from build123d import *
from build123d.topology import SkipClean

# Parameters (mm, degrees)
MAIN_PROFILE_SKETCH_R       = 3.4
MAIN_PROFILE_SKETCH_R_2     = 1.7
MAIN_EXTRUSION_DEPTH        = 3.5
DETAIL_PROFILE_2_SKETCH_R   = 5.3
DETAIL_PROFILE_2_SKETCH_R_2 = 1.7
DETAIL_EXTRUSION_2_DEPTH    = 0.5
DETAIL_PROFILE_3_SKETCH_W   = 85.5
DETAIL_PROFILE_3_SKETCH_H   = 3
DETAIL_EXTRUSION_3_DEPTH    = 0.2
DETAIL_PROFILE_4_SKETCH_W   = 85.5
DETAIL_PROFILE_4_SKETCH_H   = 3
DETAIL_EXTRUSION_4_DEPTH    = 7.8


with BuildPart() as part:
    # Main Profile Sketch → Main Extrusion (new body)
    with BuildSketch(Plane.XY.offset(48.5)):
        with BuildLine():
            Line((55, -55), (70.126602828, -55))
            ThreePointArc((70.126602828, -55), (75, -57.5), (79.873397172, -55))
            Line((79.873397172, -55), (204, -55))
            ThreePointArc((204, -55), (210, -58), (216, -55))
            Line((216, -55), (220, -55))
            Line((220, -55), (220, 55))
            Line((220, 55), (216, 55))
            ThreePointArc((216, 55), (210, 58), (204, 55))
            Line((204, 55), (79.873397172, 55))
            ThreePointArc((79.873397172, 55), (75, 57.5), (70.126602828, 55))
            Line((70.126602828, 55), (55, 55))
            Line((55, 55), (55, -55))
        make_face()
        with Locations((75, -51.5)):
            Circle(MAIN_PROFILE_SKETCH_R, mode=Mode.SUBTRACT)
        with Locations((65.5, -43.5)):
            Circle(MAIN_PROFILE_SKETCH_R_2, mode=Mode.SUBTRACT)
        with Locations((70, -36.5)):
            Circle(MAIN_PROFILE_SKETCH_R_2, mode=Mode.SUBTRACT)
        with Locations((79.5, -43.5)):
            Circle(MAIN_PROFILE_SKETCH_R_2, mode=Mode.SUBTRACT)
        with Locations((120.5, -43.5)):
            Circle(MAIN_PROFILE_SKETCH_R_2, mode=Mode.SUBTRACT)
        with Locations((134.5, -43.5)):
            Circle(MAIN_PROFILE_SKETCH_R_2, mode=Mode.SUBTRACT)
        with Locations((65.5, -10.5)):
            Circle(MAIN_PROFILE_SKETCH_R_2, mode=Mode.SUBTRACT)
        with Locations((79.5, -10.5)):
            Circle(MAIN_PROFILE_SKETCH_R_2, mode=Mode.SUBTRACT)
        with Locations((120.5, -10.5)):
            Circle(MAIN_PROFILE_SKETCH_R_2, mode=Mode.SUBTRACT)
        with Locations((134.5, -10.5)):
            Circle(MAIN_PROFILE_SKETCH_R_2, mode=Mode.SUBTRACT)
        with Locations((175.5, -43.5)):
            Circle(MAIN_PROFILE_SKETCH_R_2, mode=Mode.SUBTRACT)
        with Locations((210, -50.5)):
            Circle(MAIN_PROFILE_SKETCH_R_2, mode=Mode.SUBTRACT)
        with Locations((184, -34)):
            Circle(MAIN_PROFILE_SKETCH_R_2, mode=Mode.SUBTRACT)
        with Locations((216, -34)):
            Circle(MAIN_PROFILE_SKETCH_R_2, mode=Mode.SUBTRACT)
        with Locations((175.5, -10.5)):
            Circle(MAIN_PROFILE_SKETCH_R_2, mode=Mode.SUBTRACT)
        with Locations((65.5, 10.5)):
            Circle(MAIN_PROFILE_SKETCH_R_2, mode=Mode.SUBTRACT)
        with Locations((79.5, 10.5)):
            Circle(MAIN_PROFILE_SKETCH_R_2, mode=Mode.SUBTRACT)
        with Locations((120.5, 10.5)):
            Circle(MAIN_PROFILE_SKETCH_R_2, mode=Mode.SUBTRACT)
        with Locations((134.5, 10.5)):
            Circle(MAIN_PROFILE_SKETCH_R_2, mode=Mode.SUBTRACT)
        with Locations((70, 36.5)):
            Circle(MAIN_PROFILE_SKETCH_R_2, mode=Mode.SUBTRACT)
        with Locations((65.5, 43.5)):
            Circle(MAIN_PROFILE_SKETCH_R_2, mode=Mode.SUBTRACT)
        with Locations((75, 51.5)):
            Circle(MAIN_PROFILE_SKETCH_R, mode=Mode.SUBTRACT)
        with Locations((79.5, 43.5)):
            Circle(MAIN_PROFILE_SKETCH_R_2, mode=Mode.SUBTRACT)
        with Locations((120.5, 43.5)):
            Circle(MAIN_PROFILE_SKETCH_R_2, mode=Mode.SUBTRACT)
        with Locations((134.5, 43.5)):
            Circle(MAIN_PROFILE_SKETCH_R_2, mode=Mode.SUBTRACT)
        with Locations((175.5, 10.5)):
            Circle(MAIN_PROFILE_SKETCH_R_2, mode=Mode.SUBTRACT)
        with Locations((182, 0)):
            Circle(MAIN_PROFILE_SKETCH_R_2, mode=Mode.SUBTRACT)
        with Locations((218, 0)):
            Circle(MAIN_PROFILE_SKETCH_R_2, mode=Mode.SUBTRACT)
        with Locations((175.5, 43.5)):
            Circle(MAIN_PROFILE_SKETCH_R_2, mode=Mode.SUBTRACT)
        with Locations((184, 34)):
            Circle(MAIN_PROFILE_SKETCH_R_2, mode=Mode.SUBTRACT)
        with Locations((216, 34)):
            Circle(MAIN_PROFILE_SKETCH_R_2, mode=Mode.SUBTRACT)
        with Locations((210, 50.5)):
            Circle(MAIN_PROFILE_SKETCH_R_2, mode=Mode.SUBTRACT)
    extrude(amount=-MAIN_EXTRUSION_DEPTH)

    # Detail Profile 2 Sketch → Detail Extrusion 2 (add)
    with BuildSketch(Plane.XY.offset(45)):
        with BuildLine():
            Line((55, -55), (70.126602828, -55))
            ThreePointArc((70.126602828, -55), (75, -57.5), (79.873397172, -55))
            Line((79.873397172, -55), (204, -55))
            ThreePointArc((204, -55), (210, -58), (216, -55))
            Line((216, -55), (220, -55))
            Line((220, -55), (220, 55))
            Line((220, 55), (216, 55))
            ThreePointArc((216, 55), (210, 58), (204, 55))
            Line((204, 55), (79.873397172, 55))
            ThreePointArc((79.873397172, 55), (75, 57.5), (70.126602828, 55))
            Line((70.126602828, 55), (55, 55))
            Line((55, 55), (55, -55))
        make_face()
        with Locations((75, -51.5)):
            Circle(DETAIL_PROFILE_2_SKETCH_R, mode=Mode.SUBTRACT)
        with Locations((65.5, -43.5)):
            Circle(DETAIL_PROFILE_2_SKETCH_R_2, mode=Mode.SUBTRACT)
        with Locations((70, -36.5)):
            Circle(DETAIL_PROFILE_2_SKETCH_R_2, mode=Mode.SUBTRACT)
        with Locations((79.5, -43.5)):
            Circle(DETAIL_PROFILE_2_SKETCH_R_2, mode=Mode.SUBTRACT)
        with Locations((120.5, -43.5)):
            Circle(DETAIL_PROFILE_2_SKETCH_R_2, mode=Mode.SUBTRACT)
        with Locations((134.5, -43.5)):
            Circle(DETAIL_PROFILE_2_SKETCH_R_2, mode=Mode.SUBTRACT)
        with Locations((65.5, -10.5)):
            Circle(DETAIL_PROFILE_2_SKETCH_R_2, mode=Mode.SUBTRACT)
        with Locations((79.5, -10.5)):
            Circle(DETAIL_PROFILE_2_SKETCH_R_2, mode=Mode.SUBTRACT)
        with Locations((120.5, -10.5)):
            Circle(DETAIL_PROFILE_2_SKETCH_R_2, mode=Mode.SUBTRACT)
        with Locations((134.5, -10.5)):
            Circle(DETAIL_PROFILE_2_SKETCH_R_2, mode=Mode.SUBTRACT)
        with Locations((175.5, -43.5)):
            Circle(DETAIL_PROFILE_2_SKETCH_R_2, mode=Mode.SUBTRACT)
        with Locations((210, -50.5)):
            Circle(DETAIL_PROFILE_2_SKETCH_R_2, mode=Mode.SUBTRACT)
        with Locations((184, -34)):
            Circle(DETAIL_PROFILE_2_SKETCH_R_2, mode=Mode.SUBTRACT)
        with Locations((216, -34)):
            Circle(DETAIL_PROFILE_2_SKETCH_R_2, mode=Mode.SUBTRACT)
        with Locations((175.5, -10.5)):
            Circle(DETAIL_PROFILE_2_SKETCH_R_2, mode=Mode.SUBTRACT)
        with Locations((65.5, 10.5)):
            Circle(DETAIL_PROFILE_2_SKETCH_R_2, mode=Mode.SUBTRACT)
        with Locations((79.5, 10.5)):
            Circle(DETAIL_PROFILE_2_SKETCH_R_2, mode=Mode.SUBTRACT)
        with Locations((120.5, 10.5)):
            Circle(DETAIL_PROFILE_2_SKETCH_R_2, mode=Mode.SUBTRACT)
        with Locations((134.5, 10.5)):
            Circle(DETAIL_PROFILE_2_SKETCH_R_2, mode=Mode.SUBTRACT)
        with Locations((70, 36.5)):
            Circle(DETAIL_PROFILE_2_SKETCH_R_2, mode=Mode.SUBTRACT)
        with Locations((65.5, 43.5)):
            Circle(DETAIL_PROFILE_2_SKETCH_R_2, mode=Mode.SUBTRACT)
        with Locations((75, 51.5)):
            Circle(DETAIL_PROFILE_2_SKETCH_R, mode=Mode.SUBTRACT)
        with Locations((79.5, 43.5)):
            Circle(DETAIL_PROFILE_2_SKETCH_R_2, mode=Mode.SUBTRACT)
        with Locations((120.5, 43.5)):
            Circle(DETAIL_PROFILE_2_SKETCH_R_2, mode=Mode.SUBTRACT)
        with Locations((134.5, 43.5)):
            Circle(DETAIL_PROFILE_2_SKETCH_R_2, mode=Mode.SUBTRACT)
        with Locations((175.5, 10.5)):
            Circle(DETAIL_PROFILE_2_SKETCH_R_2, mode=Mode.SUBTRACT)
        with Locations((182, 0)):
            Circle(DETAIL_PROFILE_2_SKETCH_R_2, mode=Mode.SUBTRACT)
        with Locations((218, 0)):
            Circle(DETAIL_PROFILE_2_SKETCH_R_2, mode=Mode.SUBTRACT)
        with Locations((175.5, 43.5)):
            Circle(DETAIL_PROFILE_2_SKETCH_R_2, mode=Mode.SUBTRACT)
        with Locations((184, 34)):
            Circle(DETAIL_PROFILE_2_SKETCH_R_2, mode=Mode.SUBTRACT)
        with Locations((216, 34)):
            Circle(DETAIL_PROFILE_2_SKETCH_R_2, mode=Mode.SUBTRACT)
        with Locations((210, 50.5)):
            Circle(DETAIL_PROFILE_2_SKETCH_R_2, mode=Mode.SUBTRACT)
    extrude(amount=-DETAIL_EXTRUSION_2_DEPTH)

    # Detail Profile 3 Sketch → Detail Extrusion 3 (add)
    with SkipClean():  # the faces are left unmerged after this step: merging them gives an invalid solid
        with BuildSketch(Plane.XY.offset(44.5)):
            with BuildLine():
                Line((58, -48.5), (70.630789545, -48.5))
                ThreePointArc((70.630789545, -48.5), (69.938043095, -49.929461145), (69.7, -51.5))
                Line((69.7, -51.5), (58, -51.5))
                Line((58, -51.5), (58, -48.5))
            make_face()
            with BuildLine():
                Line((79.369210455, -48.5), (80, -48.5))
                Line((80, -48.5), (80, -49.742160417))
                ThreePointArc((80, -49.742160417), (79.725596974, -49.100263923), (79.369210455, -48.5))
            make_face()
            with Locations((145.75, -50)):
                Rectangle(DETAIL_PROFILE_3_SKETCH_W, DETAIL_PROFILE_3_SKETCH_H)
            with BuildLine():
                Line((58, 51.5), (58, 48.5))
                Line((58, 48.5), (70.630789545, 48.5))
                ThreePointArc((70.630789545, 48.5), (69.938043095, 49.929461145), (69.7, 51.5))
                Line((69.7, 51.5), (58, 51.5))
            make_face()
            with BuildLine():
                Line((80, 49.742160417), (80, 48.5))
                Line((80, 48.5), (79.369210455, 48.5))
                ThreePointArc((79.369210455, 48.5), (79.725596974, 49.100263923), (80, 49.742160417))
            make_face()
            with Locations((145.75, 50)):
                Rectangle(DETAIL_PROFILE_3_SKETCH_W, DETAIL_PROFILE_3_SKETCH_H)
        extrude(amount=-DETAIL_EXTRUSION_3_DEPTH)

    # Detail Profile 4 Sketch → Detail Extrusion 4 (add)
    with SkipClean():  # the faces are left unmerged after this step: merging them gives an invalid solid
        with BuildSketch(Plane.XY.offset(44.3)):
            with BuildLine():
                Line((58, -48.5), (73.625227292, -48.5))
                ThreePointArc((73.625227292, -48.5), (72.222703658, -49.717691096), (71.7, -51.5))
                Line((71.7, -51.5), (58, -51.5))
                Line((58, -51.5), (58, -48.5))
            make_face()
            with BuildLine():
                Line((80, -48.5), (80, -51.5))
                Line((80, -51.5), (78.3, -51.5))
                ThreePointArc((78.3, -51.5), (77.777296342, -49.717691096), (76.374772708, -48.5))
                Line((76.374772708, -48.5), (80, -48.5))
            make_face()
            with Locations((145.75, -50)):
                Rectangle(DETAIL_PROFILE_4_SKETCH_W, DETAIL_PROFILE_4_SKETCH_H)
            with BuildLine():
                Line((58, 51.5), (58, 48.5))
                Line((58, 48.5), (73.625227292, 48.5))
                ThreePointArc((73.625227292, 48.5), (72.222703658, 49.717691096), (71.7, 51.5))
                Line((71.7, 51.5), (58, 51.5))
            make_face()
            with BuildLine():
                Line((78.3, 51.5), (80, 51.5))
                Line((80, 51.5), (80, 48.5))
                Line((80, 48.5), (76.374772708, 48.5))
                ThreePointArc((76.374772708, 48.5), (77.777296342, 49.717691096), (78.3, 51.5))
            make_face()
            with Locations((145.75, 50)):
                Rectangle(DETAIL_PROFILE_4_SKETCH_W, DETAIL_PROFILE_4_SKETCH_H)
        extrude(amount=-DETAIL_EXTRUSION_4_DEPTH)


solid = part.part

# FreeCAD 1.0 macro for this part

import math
import FreeCAD as App
import Part
import Sketcher

V = App.Vector


def add_polygon(sketch, points):
    """Adds a closed chain of lines whose ends are joined by coincident constraints."""
    first, n = sketch.GeometryCount, len(points)
    for a, b in zip(points, points[1:] + points[:1]):
        sketch.addGeometry(Part.LineSegment(App.Vector(*a, 0), App.Vector(*b, 0)), False)
    for i in range(n):
        sketch.addConstraint(Sketcher.Constraint("Coincident", first + i, 2, first + (i + 1) % n, 1))

doc = App.newDocument("Part")
body = doc.addObject("PartDesign::Body", "Body")

# Sketch on XY plane
sketch1 = body.newObject("Sketcher::SketchObject", "Sketch")
sketch1.AttachmentSupport = (doc.getObject("XY_Plane"), [""])
sketch1.MapMode = "FlatFace"
sketch1.AttachmentOffset = App.Placement(V(0, 0, 48.5), App.Rotation())
sketch1.addGeometry([
    Part.LineSegment(V(55, -55, 0), V(70.1, -55, 0)),  # 0
    Part.ArcOfCircle(Part.Circle(V(75, -51.5, 0), V(0, 0, 1), 6), math.radians(-144), math.radians(-36)),  # 1
    Part.LineSegment(V(79.9, -55, 0), V(204, -55, 0)),  # 2
    Part.ArcOfCircle(Part.Circle(V(210, -50.5, 0), V(0, 0, 1), 7.5), math.radians(-143), math.radians(-37)),  # 3
    Part.LineSegment(V(216, -55, 0), V(220, -55, 0)),  # 4
    Part.LineSegment(V(220, -55, 0), V(220, 55, 0)),  # 5
    Part.LineSegment(V(220, 55, 0), V(216, 55, 0)),  # 6
    Part.ArcOfCircle(Part.Circle(V(210, 50.5, 0), V(0, 0, 1), 7.5), math.radians(37), math.radians(143)),  # 7
    Part.LineSegment(V(204, 55, 0), V(79.9, 55, 0)),  # 8
    Part.ArcOfCircle(Part.Circle(V(75, 51.5, 0), V(0, 0, 1), 6), math.radians(36), math.radians(144)),  # 9
    Part.LineSegment(V(70.1, 55, 0), V(55, 55, 0)),  # 10
    Part.LineSegment(V(55, 55, 0), V(55, -55, 0)),  # 11
    Part.Circle(V(75, -51.5, 0), V(0, 0, 1), 3.4),  # 12
    Part.Circle(V(65.5, -43.5, 0), V(0, 0, 1), 1.7),  # 13
    Part.Circle(V(79.5, -43.5, 0), V(0, 0, 1), 1.7),  # 14
    Part.Circle(V(70, -36.5, 0), V(0, 0, 1), 1.7),  # 15
    Part.Circle(V(120.5, -43.5, 0), V(0, 0, 1), 1.7),  # 16
    Part.Circle(V(134.5, -43.5, 0), V(0, 0, 1), 1.7),  # 17
    Part.Circle(V(65.5, -10.5, 0), V(0, 0, 1), 1.7),  # 18
    Part.Circle(V(79.5, -10.5, 0), V(0, 0, 1), 1.7),  # 19
    Part.Circle(V(120.5, -10.5, 0), V(0, 0, 1), 1.7),  # 20
    Part.Circle(V(134.5, -10.5, 0), V(0, 0, 1), 1.7),  # 21
    Part.Circle(V(175.5, -43.5, 0), V(0, 0, 1), 1.7),  # 22
    Part.Circle(V(210, -50.5, 0), V(0, 0, 1), 1.7),  # 23
    Part.Circle(V(184, -34, 0), V(0, 0, 1), 1.7),  # 24
    Part.Circle(V(216, -34, 0), V(0, 0, 1), 1.7),  # 25
    Part.Circle(V(175.5, -10.5, 0), V(0, 0, 1), 1.7),  # 26
    Part.Circle(V(65.5, 10.5, 0), V(0, 0, 1), 1.7),  # 27
    Part.Circle(V(79.5, 10.5, 0), V(0, 0, 1), 1.7),  # 28
    Part.Circle(V(120.5, 10.5, 0), V(0, 0, 1), 1.7),  # 29
    Part.Circle(V(134.5, 10.5, 0), V(0, 0, 1), 1.7),  # 30
    Part.Circle(V(70, 36.5, 0), V(0, 0, 1), 1.7),  # 31
    Part.Circle(V(65.5, 43.5, 0), V(0, 0, 1), 1.7),  # 32
    Part.Circle(V(79.5, 43.5, 0), V(0, 0, 1), 1.7),  # 33
    Part.Circle(V(75, 51.5, 0), V(0, 0, 1), 3.4),  # 34
    Part.Circle(V(120.5, 43.5, 0), V(0, 0, 1), 1.7),  # 35
    Part.Circle(V(134.5, 43.5, 0), V(0, 0, 1), 1.7),  # 36
    Part.Circle(V(175.5, 10.5, 0), V(0, 0, 1), 1.7),  # 37
    Part.Circle(V(182, 0, 0), V(0, 0, 1), 1.7),  # 38
    Part.Circle(V(218, 0, 0), V(0, 0, 1), 1.7),  # 39
    Part.Circle(V(175.5, 43.5, 0), V(0, 0, 1), 1.7),  # 40
    Part.Circle(V(184, 34, 0), V(0, 0, 1), 1.7),  # 41
    Part.Circle(V(216, 34, 0), V(0, 0, 1), 1.7),  # 42
    Part.Circle(V(210, 50.5, 0), V(0, 0, 1), 1.7),  # 43
], False)
sketch1.addConstraint([
    Sketcher.Constraint("Coincident", 0, 2, 1, 1),
    Sketcher.Constraint("Coincident", 1, 2, 2, 1),
    Sketcher.Constraint("Coincident", 2, 2, 3, 1),
    Sketcher.Constraint("Coincident", 3, 2, 4, 1),
    Sketcher.Constraint("Coincident", 4, 2, 5, 1),
    Sketcher.Constraint("Coincident", 5, 2, 6, 1),
    Sketcher.Constraint("Coincident", 6, 2, 7, 1),
    Sketcher.Constraint("Coincident", 7, 2, 8, 1),
    Sketcher.Constraint("Coincident", 8, 2, 9, 1),
    Sketcher.Constraint("Coincident", 9, 2, 10, 1),
    Sketcher.Constraint("Coincident", 10, 2, 11, 1),
    Sketcher.Constraint("Coincident", 11, 2, 0, 1),
    Sketcher.Constraint("Horizontal", 0),
    Sketcher.Constraint("Horizontal", 2),
    Sketcher.Constraint("Horizontal", 4),
    Sketcher.Constraint("Vertical", 5),
    Sketcher.Constraint("Horizontal", 6),
    Sketcher.Constraint("Horizontal", 8),
    Sketcher.Constraint("Horizontal", 10),
    Sketcher.Constraint("Vertical", 11),
    Sketcher.Constraint("Coincident", 12, 3, 1, 3),
    Sketcher.Constraint("Coincident", 23, 3, 3, 3),
    Sketcher.Constraint("Coincident", 34, 3, 9, 3),
    Sketcher.Constraint("Coincident", 43, 3, 7, 3),
    Sketcher.Constraint("Equal", 3, 7),
    Sketcher.Constraint("Equal", 1, 9),
    Sketcher.Constraint("Equal", 13, 14),
    Sketcher.Constraint("Equal", 14, 15),
    Sketcher.Constraint("Equal", 15, 16),
    Sketcher.Constraint("Equal", 16, 17),
    Sketcher.Constraint("Equal", 17, 18),
    Sketcher.Constraint("Equal", 18, 19),
    Sketcher.Constraint("Equal", 19, 20),
    Sketcher.Constraint("Equal", 20, 21),
    Sketcher.Constraint("Equal", 21, 22),
    Sketcher.Constraint("Equal", 22, 23),
    Sketcher.Constraint("Equal", 23, 24),
    Sketcher.Constraint("Equal", 24, 25),
    Sketcher.Constraint("Equal", 25, 26),
    Sketcher.Constraint("Equal", 26, 27),
    Sketcher.Constraint("Equal", 27, 28),
    Sketcher.Constraint("Equal", 28, 29),
    Sketcher.Constraint("Equal", 29, 30),
    Sketcher.Constraint("Equal", 30, 31),
    Sketcher.Constraint("Equal", 31, 32),
    Sketcher.Constraint("Equal", 32, 33),
    Sketcher.Constraint("Equal", 12, 34),
    Sketcher.Constraint("Equal", 33, 35),
    Sketcher.Constraint("Equal", 35, 36),
    Sketcher.Constraint("Equal", 36, 37),
    Sketcher.Constraint("Equal", 37, 38),
    Sketcher.Constraint("Equal", 38, 39),
    Sketcher.Constraint("Equal", 39, 40),
    Sketcher.Constraint("Equal", 40, 41),
    Sketcher.Constraint("Equal", 41, 42),
    Sketcher.Constraint("Equal", 42, 43),
    Sketcher.Constraint("Symmetric", 3, 3, 7, 3, -1),
    Sketcher.Constraint("Symmetric", 1, 3, 9, 3, -1),
    Sketcher.Constraint("Symmetric", 18, 3, 27, 3, -1),
    Sketcher.Constraint("Symmetric", 19, 3, 28, 3, -1),
    Sketcher.Constraint("Symmetric", 20, 3, 29, 3, -1),
    Sketcher.Constraint("Symmetric", 21, 3, 30, 3, -1),
    Sketcher.Constraint("Symmetric", 15, 3, 31, 3, -1),
    Sketcher.Constraint("Symmetric", 13, 3, 32, 3, -1),
    Sketcher.Constraint("Symmetric", 14, 3, 33, 3, -1),
    Sketcher.Constraint("Symmetric", 16, 3, 35, 3, -1),
    Sketcher.Constraint("Symmetric", 17, 3, 36, 3, -1),
    Sketcher.Constraint("Symmetric", 26, 3, 37, 3, -1),
    Sketcher.Constraint("Symmetric", 22, 3, 40, 3, -1),
    Sketcher.Constraint("Symmetric", 24, 3, 41, 3, -1),
    Sketcher.Constraint("Symmetric", 25, 3, 42, 3, -1),
    Sketcher.Constraint("PointOnObject", 38, 3, -1),
    Sketcher.Constraint("PointOnObject", 39, 3, -1),
    Sketcher.Constraint("Horizontal", 13, 3, 14, 3),
    Sketcher.Constraint("Horizontal", 14, 3, 16, 3),
    Sketcher.Constraint("Horizontal", 16, 3, 17, 3),
    Sketcher.Constraint("Horizontal", 18, 3, 19, 3),
    Sketcher.Constraint("Horizontal", 19, 3, 20, 3),
    Sketcher.Constraint("Horizontal", 20, 3, 21, 3),
    Sketcher.Constraint("Horizontal", 17, 3, 22, 3),
    Sketcher.Constraint("Horizontal", 24, 3, 25, 3),
    Sketcher.Constraint("Horizontal", 21, 3, 26, 3),
    Sketcher.Constraint("Horizontal", 0, 2, 1, 2),
    Sketcher.Constraint("Horizontal", 2, 2, 3, 2),
    Sketcher.Constraint("Horizontal", 6, 2, 7, 2),
    Sketcher.Constraint("Horizontal", 8, 2, 9, 2),
    Sketcher.Constraint("Vertical", 13, 3, 18, 3),
    Sketcher.Constraint("Vertical", 14, 3, 19, 3),
    Sketcher.Constraint("Vertical", 16, 3, 20, 3),
    Sketcher.Constraint("Vertical", 17, 3, 21, 3),
    Sketcher.Constraint("Vertical", 22, 3, 26, 3),
    Sketcher.Constraint("Vertical", 42, 3, 3, 2),
    Sketcher.Constraint("Vertical", 3, 2, 6, 2),
    Sketcher.Constraint("Radius", 1, 6.0),
    Sketcher.Constraint("Diameter", 12, 6.8),
    Sketcher.Constraint("Diameter", 13, 3.4),
    Sketcher.Constraint("Radius", 3, 7.5),
    Sketcher.Constraint("DistanceX", 4, 1, 4, 2, 4.0),
    Sketcher.Constraint("DistanceY", 5, 1, 5, 2, 110.0),
    Sketcher.Constraint("DistanceX", -1, 1, 1, 3, 75.0),
    Sketcher.Constraint("DistanceX", -1, 1, 3, 3, 210.0),
    Sketcher.Constraint("DistanceX", -1, 1, 15, 3, 70.0),
    Sketcher.Constraint("DistanceX", -1, 1, 24, 3, 184.0),
    Sketcher.Constraint("DistanceY", 24, 3, -1, 1, 34.0),
    Sketcher.Constraint("DistanceX", -1, 1, 25, 3, 216.0),
    Sketcher.Constraint("DistanceX", -1, 1, 38, 3, 182.0),
    Sketcher.Constraint("DistanceX", -1, 1, 39, 3, 218.0),
    Sketcher.Constraint("DistanceX", -1, 1, 10, 2, 55.0),
    Sketcher.Constraint("DistanceY", 1, 3, 3, 3, 1.0),
    Sketcher.Constraint("DistanceY", 12, 3, 13, 3, 8.0),
    Sketcher.Constraint("DistanceX", 13, 3, 14, 3, 14.0),
    Sketcher.Constraint("DistanceY", 13, 3, 15, 3, 7.0),
    Sketcher.Constraint("DistanceX", 14, 3, 16, 3, 41.0),
    Sketcher.Constraint("DistanceX", 16, 3, 17, 3, 14.0),
    Sketcher.Constraint("DistanceY", 15, 3, 18, 3, 26.0),
    Sketcher.Constraint("DistanceX", 17, 3, 22, 3, 41.0),
    Sketcher.Constraint("DistanceX", -1, 1, 13, 3, 65.5),
])
pad1 = body.newObject("PartDesign::Pad", "Pad")
pad1.Profile = sketch1
pad1.Length = 3.5
pad1.Reversed = True

# Sketch on XY plane
sketch2 = body.newObject("Sketcher::SketchObject", "Sketch001")
sketch2.AttachmentSupport = (doc.getObject("XY_Plane"), [""])
sketch2.MapMode = "FlatFace"
sketch2.AttachmentOffset = App.Placement(V(0, 0, 45), App.Rotation())
sketch2.addGeometry([
    Part.LineSegment(V(55, -55, 0), V(70.1, -55, 0)),  # 0
    Part.ArcOfCircle(Part.Circle(V(75, -51.5, 0), V(0, 0, 1), 6), math.radians(-144), math.radians(-36)),  # 1
    Part.LineSegment(V(79.9, -55, 0), V(204, -55, 0)),  # 2
    Part.ArcOfCircle(Part.Circle(V(210, -50.5, 0), V(0, 0, 1), 7.5), math.radians(-143), math.radians(-37)),  # 3
    Part.LineSegment(V(216, -55, 0), V(220, -55, 0)),  # 4
    Part.LineSegment(V(220, -55, 0), V(220, 55, 0)),  # 5
    Part.LineSegment(V(220, 55, 0), V(216, 55, 0)),  # 6
    Part.ArcOfCircle(Part.Circle(V(210, 50.5, 0), V(0, 0, 1), 7.5), math.radians(37), math.radians(143)),  # 7
    Part.LineSegment(V(204, 55, 0), V(79.9, 55, 0)),  # 8
    Part.ArcOfCircle(Part.Circle(V(75, 51.5, 0), V(0, 0, 1), 6), math.radians(36), math.radians(144)),  # 9
    Part.LineSegment(V(70.1, 55, 0), V(55, 55, 0)),  # 10
    Part.LineSegment(V(55, 55, 0), V(55, -55, 0)),  # 11
    Part.Circle(V(75, -51.5, 0), V(0, 0, 1), 5.3),  # 12
    Part.Circle(V(65.5, -43.5, 0), V(0, 0, 1), 1.7),  # 13
    Part.Circle(V(79.5, -43.5, 0), V(0, 0, 1), 1.7),  # 14
    Part.Circle(V(70, -36.5, 0), V(0, 0, 1), 1.7),  # 15
    Part.Circle(V(120.5, -43.5, 0), V(0, 0, 1), 1.7),  # 16
    Part.Circle(V(134.5, -43.5, 0), V(0, 0, 1), 1.7),  # 17
    Part.Circle(V(65.5, -10.5, 0), V(0, 0, 1), 1.7),  # 18
    Part.Circle(V(79.5, -10.5, 0), V(0, 0, 1), 1.7),  # 19
    Part.Circle(V(120.5, -10.5, 0), V(0, 0, 1), 1.7),  # 20
    Part.Circle(V(134.5, -10.5, 0), V(0, 0, 1), 1.7),  # 21
    Part.Circle(V(175.5, -43.5, 0), V(0, 0, 1), 1.7),  # 22
    Part.Circle(V(210, -50.5, 0), V(0, 0, 1), 1.7),  # 23
    Part.Circle(V(184, -34, 0), V(0, 0, 1), 1.7),  # 24
    Part.Circle(V(216, -34, 0), V(0, 0, 1), 1.7),  # 25
    Part.Circle(V(175.5, -10.5, 0), V(0, 0, 1), 1.7),  # 26
    Part.Circle(V(65.5, 10.5, 0), V(0, 0, 1), 1.7),  # 27
    Part.Circle(V(79.5, 10.5, 0), V(0, 0, 1), 1.7),  # 28
    Part.Circle(V(120.5, 10.5, 0), V(0, 0, 1), 1.7),  # 29
    Part.Circle(V(134.5, 10.5, 0), V(0, 0, 1), 1.7),  # 30
    Part.Circle(V(70, 36.5, 0), V(0, 0, 1), 1.7),  # 31
    Part.Circle(V(65.5, 43.5, 0), V(0, 0, 1), 1.7),  # 32
    Part.Circle(V(79.5, 43.5, 0), V(0, 0, 1), 1.7),  # 33
    Part.Circle(V(75, 51.5, 0), V(0, 0, 1), 5.3),  # 34
    Part.Circle(V(120.5, 43.5, 0), V(0, 0, 1), 1.7),  # 35
    Part.Circle(V(134.5, 43.5, 0), V(0, 0, 1), 1.7),  # 36
    Part.Circle(V(175.5, 10.5, 0), V(0, 0, 1), 1.7),  # 37
    Part.Circle(V(182, 0, 0), V(0, 0, 1), 1.7),  # 38
    Part.Circle(V(218, 0, 0), V(0, 0, 1), 1.7),  # 39
    Part.Circle(V(175.5, 43.5, 0), V(0, 0, 1), 1.7),  # 40
    Part.Circle(V(184, 34, 0), V(0, 0, 1), 1.7),  # 41
    Part.Circle(V(216, 34, 0), V(0, 0, 1), 1.7),  # 42
    Part.Circle(V(210, 50.5, 0), V(0, 0, 1), 1.7),  # 43
], False)
sketch2.addConstraint([
    Sketcher.Constraint("Coincident", 0, 2, 1, 1),
    Sketcher.Constraint("Coincident", 1, 2, 2, 1),
    Sketcher.Constraint("Coincident", 2, 2, 3, 1),
    Sketcher.Constraint("Coincident", 3, 2, 4, 1),
    Sketcher.Constraint("Coincident", 4, 2, 5, 1),
    Sketcher.Constraint("Coincident", 5, 2, 6, 1),
    Sketcher.Constraint("Coincident", 6, 2, 7, 1),
    Sketcher.Constraint("Coincident", 7, 2, 8, 1),
    Sketcher.Constraint("Coincident", 8, 2, 9, 1),
    Sketcher.Constraint("Coincident", 9, 2, 10, 1),
    Sketcher.Constraint("Coincident", 10, 2, 11, 1),
    Sketcher.Constraint("Coincident", 11, 2, 0, 1),
    Sketcher.Constraint("Horizontal", 0),
    Sketcher.Constraint("Horizontal", 2),
    Sketcher.Constraint("Horizontal", 4),
    Sketcher.Constraint("Vertical", 5),
    Sketcher.Constraint("Horizontal", 6),
    Sketcher.Constraint("Horizontal", 8),
    Sketcher.Constraint("Horizontal", 10),
    Sketcher.Constraint("Vertical", 11),
    Sketcher.Constraint("Coincident", 12, 3, 1, 3),
    Sketcher.Constraint("Coincident", 23, 3, 3, 3),
    Sketcher.Constraint("Coincident", 34, 3, 9, 3),
    Sketcher.Constraint("Coincident", 43, 3, 7, 3),
    Sketcher.Constraint("Equal", 3, 7),
    Sketcher.Constraint("Equal", 1, 9),
    Sketcher.Constraint("Equal", 13, 14),
    Sketcher.Constraint("Equal", 14, 15),
    Sketcher.Constraint("Equal", 15, 16),
    Sketcher.Constraint("Equal", 16, 17),
    Sketcher.Constraint("Equal", 17, 18),
    Sketcher.Constraint("Equal", 18, 19),
    Sketcher.Constraint("Equal", 19, 20),
    Sketcher.Constraint("Equal", 20, 21),
    Sketcher.Constraint("Equal", 21, 22),
    Sketcher.Constraint("Equal", 22, 23),
    Sketcher.Constraint("Equal", 23, 24),
    Sketcher.Constraint("Equal", 24, 25),
    Sketcher.Constraint("Equal", 25, 26),
    Sketcher.Constraint("Equal", 26, 27),
    Sketcher.Constraint("Equal", 27, 28),
    Sketcher.Constraint("Equal", 28, 29),
    Sketcher.Constraint("Equal", 29, 30),
    Sketcher.Constraint("Equal", 30, 31),
    Sketcher.Constraint("Equal", 31, 32),
    Sketcher.Constraint("Equal", 32, 33),
    Sketcher.Constraint("Equal", 12, 34),
    Sketcher.Constraint("Equal", 33, 35),
    Sketcher.Constraint("Equal", 35, 36),
    Sketcher.Constraint("Equal", 36, 37),
    Sketcher.Constraint("Equal", 37, 38),
    Sketcher.Constraint("Equal", 38, 39),
    Sketcher.Constraint("Equal", 39, 40),
    Sketcher.Constraint("Equal", 40, 41),
    Sketcher.Constraint("Equal", 41, 42),
    Sketcher.Constraint("Equal", 42, 43),
    Sketcher.Constraint("Symmetric", 3, 3, 7, 3, -1),
    Sketcher.Constraint("Symmetric", 1, 3, 9, 3, -1),
    Sketcher.Constraint("Symmetric", 18, 3, 27, 3, -1),
    Sketcher.Constraint("Symmetric", 19, 3, 28, 3, -1),
    Sketcher.Constraint("Symmetric", 20, 3, 29, 3, -1),
    Sketcher.Constraint("Symmetric", 21, 3, 30, 3, -1),
    Sketcher.Constraint("Symmetric", 15, 3, 31, 3, -1),
    Sketcher.Constraint("Symmetric", 13, 3, 32, 3, -1),
    Sketcher.Constraint("Symmetric", 14, 3, 33, 3, -1),
    Sketcher.Constraint("Symmetric", 16, 3, 35, 3, -1),
    Sketcher.Constraint("Symmetric", 17, 3, 36, 3, -1),
    Sketcher.Constraint("Symmetric", 26, 3, 37, 3, -1),
    Sketcher.Constraint("Symmetric", 22, 3, 40, 3, -1),
    Sketcher.Constraint("Symmetric", 24, 3, 41, 3, -1),
    Sketcher.Constraint("Symmetric", 25, 3, 42, 3, -1),
    Sketcher.Constraint("PointOnObject", 38, 3, -1),
    Sketcher.Constraint("PointOnObject", 39, 3, -1),
    Sketcher.Constraint("Horizontal", 13, 3, 14, 3),
    Sketcher.Constraint("Horizontal", 14, 3, 16, 3),
    Sketcher.Constraint("Horizontal", 16, 3, 17, 3),
    Sketcher.Constraint("Horizontal", 18, 3, 19, 3),
    Sketcher.Constraint("Horizontal", 19, 3, 20, 3),
    Sketcher.Constraint("Horizontal", 20, 3, 21, 3),
    Sketcher.Constraint("Horizontal", 17, 3, 22, 3),
    Sketcher.Constraint("Horizontal", 24, 3, 25, 3),
    Sketcher.Constraint("Horizontal", 21, 3, 26, 3),
    Sketcher.Constraint("Horizontal", 0, 2, 1, 2),
    Sketcher.Constraint("Horizontal", 2, 2, 3, 2),
    Sketcher.Constraint("Horizontal", 6, 2, 7, 2),
    Sketcher.Constraint("Horizontal", 8, 2, 9, 2),
    Sketcher.Constraint("Vertical", 13, 3, 18, 3),
    Sketcher.Constraint("Vertical", 14, 3, 19, 3),
    Sketcher.Constraint("Vertical", 16, 3, 20, 3),
    Sketcher.Constraint("Vertical", 17, 3, 21, 3),
    Sketcher.Constraint("Vertical", 22, 3, 26, 3),
    Sketcher.Constraint("Vertical", 42, 3, 3, 2),
    Sketcher.Constraint("Vertical", 3, 2, 6, 2),
    Sketcher.Constraint("Radius", 1, 6.0),
    Sketcher.Constraint("Diameter", 12, 10.6),
    Sketcher.Constraint("Diameter", 13, 3.4),
    Sketcher.Constraint("Radius", 3, 7.5),
    Sketcher.Constraint("DistanceX", 4, 1, 4, 2, 4.0),
    Sketcher.Constraint("DistanceY", 5, 1, 5, 2, 110.0),
    Sketcher.Constraint("DistanceX", -1, 1, 1, 3, 75.0),
    Sketcher.Constraint("DistanceX", -1, 1, 3, 3, 210.0),
    Sketcher.Constraint("DistanceX", -1, 1, 15, 3, 70.0),
    Sketcher.Constraint("DistanceX", -1, 1, 24, 3, 184.0),
    Sketcher.Constraint("DistanceY", 24, 3, -1, 1, 34.0),
    Sketcher.Constraint("DistanceX", -1, 1, 25, 3, 216.0),
    Sketcher.Constraint("DistanceX", -1, 1, 38, 3, 182.0),
    Sketcher.Constraint("DistanceX", -1, 1, 39, 3, 218.0),
    Sketcher.Constraint("DistanceX", -1, 1, 10, 2, 55.0),
    Sketcher.Constraint("DistanceY", 1, 3, 3, 3, 1.0),
    Sketcher.Constraint("DistanceY", 12, 3, 13, 3, 8.0),
    Sketcher.Constraint("DistanceX", 13, 3, 14, 3, 14.0),
    Sketcher.Constraint("DistanceY", 13, 3, 15, 3, 7.0),
    Sketcher.Constraint("DistanceX", 14, 3, 16, 3, 41.0),
    Sketcher.Constraint("DistanceX", 16, 3, 17, 3, 14.0),
    Sketcher.Constraint("DistanceY", 15, 3, 18, 3, 26.0),
    Sketcher.Constraint("DistanceX", 17, 3, 22, 3, 41.0),
    Sketcher.Constraint("DistanceX", -1, 1, 13, 3, 65.5),
])
pad2 = body.newObject("PartDesign::Pad", "Pad001")
pad2.Profile = sketch2
pad2.Length = 0.5
pad2.Reversed = True

# Sketch on XY plane
sketch3 = body.newObject("Sketcher::SketchObject", "Sketch002")
sketch3.AttachmentSupport = (doc.getObject("XY_Plane"), [""])
sketch3.MapMode = "FlatFace"
sketch3.AttachmentOffset = App.Placement(V(0, 0, 44.5), App.Rotation())
sketch3.addGeometry(Part.LineSegment(V(70.6, -48.5, 0), V(58, -48.5, 0)), False)  # 0
sketch3.addGeometry(Part.LineSegment(V(58, -48.5, 0), V(58, -51.5, 0)), False)  # 1
sketch3.addGeometry(Part.LineSegment(V(58, -51.5, 0), V(69.7, -51.5, 0)), False)  # 2
sketch3.addGeometry(Part.ArcOfCircle(Part.Circle(V(75, -51.5, 0), V(0, 0, 1), 5.3), math.radians(146), math.radians(180)), False)  # 3
sketch3.addGeometry(Part.LineSegment(V(80, -48.5, 0), V(79.4, -48.5, 0)), False)  # 4
sketch3.addGeometry(Part.ArcOfCircle(Part.Circle(V(75, -51.5, 0), V(0, 0, 1), 5.3), math.radians(19.37), math.radians(34.47)), False)  # 5
sketch3.addGeometry(Part.LineSegment(V(80, -49.7, 0), V(80, -48.5, 0)), False)  # 6
add_polygon(sketch3, [(103, -48.5), (103, -51.5), (188.5, -51.5), (188.5, -48.5)])  # lines 7-10
sketch3.addGeometry(Part.LineSegment(V(58, 51.5, 0), V(58, 48.5, 0)), False)  # 11
sketch3.addGeometry(Part.LineSegment(V(58, 48.5, 0), V(70.6, 48.5, 0)), False)  # 12
sketch3.addGeometry(Part.ArcOfCircle(Part.Circle(V(75, 51.5, 0), V(0, 0, 1), 5.3), math.radians(180), math.radians(214)), False)  # 13
sketch3.addGeometry(Part.LineSegment(V(69.7, 51.5, 0), V(58, 51.5, 0)), False)  # 14
sketch3.addGeometry(Part.LineSegment(V(80, 48.5, 0), V(80, 49.7, 0)), False)  # 15
sketch3.addGeometry(Part.ArcOfCircle(Part.Circle(V(75, 51.5, 0), V(0, 0, 1), 5.3), math.radians(-34.47), math.radians(-19.37)), False)  # 16
sketch3.addGeometry(Part.LineSegment(V(79.4, 48.5, 0), V(80, 48.5, 0)), False)  # 17
add_polygon(sketch3, [(103, 51.5), (103, 48.5), (188.5, 48.5), (188.5, 51.5)])  # lines 18-21
sketch3.addConstraint([
    Sketcher.Constraint("Coincident", 0, 2, 1, 1),
    Sketcher.Constraint("Coincident", 1, 2, 2, 1),
    Sketcher.Constraint("Coincident", 2, 2, 3, 2),
    Sketcher.Constraint("Coincident", 3, 1, 0, 1),
    Sketcher.Constraint("Coincident", 4, 2, 5, 2),
    Sketcher.Constraint("Coincident", 5, 1, 6, 1),
    Sketcher.Constraint("Coincident", 6, 2, 4, 1),
    Sketcher.Constraint("Coincident", 11, 2, 12, 1),
    Sketcher.Constraint("Coincident", 12, 2, 13, 2),
    Sketcher.Constraint("Coincident", 13, 1, 14, 1),
    Sketcher.Constraint("Coincident", 14, 2, 11, 1),
    Sketcher.Constraint("Coincident", 15, 2, 16, 2),
    Sketcher.Constraint("Coincident", 16, 1, 17, 1),
    Sketcher.Constraint("Coincident", 17, 2, 15, 1),
    Sketcher.Constraint("Horizontal", 0),
    Sketcher.Constraint("Vertical", 1),
    Sketcher.Constraint("Horizontal", 2),
    Sketcher.Constraint("Horizontal", 4),
    Sketcher.Constraint("Vertical", 6),
    Sketcher.Constraint("Vertical", 7),
    Sketcher.Constraint("Horizontal", 8),
    Sketcher.Constraint("Vertical", 9),
    Sketcher.Constraint("Horizontal", 10),
    Sketcher.Constraint("Vertical", 11),
    Sketcher.Constraint("Horizontal", 12),
    Sketcher.Constraint("Horizontal", 14),
    Sketcher.Constraint("Vertical", 15),
    Sketcher.Constraint("Horizontal", 17),
    Sketcher.Constraint("Vertical", 18),
    Sketcher.Constraint("Horizontal", 19),
    Sketcher.Constraint("Vertical", 20),
    Sketcher.Constraint("Horizontal", 21),
    Sketcher.Constraint("Coincident", 5, 3, 3, 3),
    Sketcher.Constraint("Coincident", 16, 3, 13, 3),
    Sketcher.Constraint("Equal", 3, 5),
    Sketcher.Constraint("Equal", 5, 13),
    Sketcher.Constraint("Equal", 13, 16),
    Sketcher.Constraint("Symmetric", 3, 3, 13, 3, -1),
    Sketcher.Constraint("Symmetric", 0, 2, 11, 2, -1),
    Sketcher.Constraint("Symmetric", 6, 2, 17, 2, -1),
    Sketcher.Constraint("Symmetric", 10, 2, 18, 2, -1),
    Sketcher.Constraint("Symmetric", 8, 2, 20, 2, -1),
    Sketcher.Constraint("Horizontal", 5, 3, 1, 2),
    Sketcher.Constraint("Horizontal", 3, 1, 4, 2),
    Sketcher.Constraint("Horizontal", 2, 2, 7, 2),
    Sketcher.Constraint("Horizontal", 6, 2, 9, 2),
    Sketcher.Constraint("Horizontal", 16, 3, 13, 1),
    Sketcher.Constraint("Radius", 3, 5.3),
    Sketcher.Constraint("DistanceY", 1, 2, 1, 1, 3.0),
    Sketcher.Constraint("DistanceX", 2, 1, 2, 2, 11.7),
    Sketcher.Constraint("DistanceX", 8, 1, 8, 2, 85.5),
    Sketcher.Constraint("DistanceX", -1, 1, 3, 3, 75.0),
    Sketcher.Constraint("DistanceX", -1, 1, 5, 1, 80.0),
    Sketcher.Constraint("DistanceX", -1, 1, 7, 2, 103.0),
    Sketcher.Constraint("DistanceY", 3, 3, 13, 3, 103.0),
])
pad3 = body.newObject("PartDesign::Pad", "Pad002")
pad3.Profile = sketch3
pad3.Length = 0.2
pad3.Reversed = True

# Sketch on XY plane
sketch4 = body.newObject("Sketcher::SketchObject", "Sketch003")
sketch4.AttachmentSupport = (doc.getObject("XY_Plane"), [""])
sketch4.MapMode = "FlatFace"
sketch4.AttachmentOffset = App.Placement(V(0, 0, 44.3), App.Rotation())
sketch4.addGeometry(Part.LineSegment(V(73.6, -48.5, 0), V(58, -48.5, 0)), False)  # 0
sketch4.addGeometry(Part.LineSegment(V(58, -48.5, 0), V(58, -51.5, 0)), False)  # 1
sketch4.addGeometry(Part.LineSegment(V(58, -51.5, 0), V(71.7, -51.5, 0)), False)  # 2
sketch4.addGeometry(Part.ArcOfCircle(Part.Circle(V(75, -51.5, 0), V(0, 0, 1), 3.3), math.radians(115), math.radians(180)), False)  # 3
sketch4.addGeometry(Part.LineSegment(V(80, -51.5, 0), V(80, -48.5, 0)), False)  # 4
sketch4.addGeometry(Part.LineSegment(V(80, -48.5, 0), V(76.4, -48.5, 0)), False)  # 5
sketch4.addGeometry(Part.ArcOfCircle(Part.Circle(V(75, -51.5, 0), V(0, 0, 1), 3.3), math.radians(0), math.radians(65)), False)  # 6
sketch4.addGeometry(Part.LineSegment(V(78.3, -51.5, 0), V(80, -51.5, 0)), False)  # 7
add_polygon(sketch4, [(103, -48.5), (103, -51.5), (188.5, -51.5), (188.5, -48.5)])  # lines 8-11
sketch4.addGeometry(Part.LineSegment(V(58, 51.5, 0), V(58, 48.5, 0)), False)  # 12
sketch4.addGeometry(Part.LineSegment(V(58, 48.5, 0), V(73.6, 48.5, 0)), False)  # 13
sketch4.addGeometry(Part.ArcOfCircle(Part.Circle(V(75, 51.5, 0), V(0, 0, 1), 3.3), math.radians(180), math.radians(245)), False)  # 14
sketch4.addGeometry(Part.LineSegment(V(71.7, 51.5, 0), V(58, 51.5, 0)), False)  # 15
sketch4.addGeometry(Part.LineSegment(V(80, 51.5, 0), V(78.3, 51.5, 0)), False)  # 16
sketch4.addGeometry(Part.ArcOfCircle(Part.Circle(V(75, 51.5, 0), V(0, 0, 1), 3.3), math.radians(-65), math.radians(0)), False)  # 17
sketch4.addGeometry(Part.LineSegment(V(76.4, 48.5, 0), V(80, 48.5, 0)), False)  # 18
sketch4.addGeometry(Part.LineSegment(V(80, 48.5, 0), V(80, 51.5, 0)), False)  # 19
add_polygon(sketch4, [(103, 51.5), (103, 48.5), (188.5, 48.5), (188.5, 51.5)])  # lines 20-23
sketch4.addConstraint([
    Sketcher.Constraint("Coincident", 0, 2, 1, 1),
    Sketcher.Constraint("Coincident", 1, 2, 2, 1),
    Sketcher.Constraint("Coincident", 2, 2, 3, 2),
    Sketcher.Constraint("Coincident", 3, 1, 0, 1),
    Sketcher.Constraint("Coincident", 4, 2, 5, 1),
    Sketcher.Constraint("Coincident", 5, 2, 6, 2),
    Sketcher.Constraint("Coincident", 6, 1, 7, 1),
    Sketcher.Constraint("Coincident", 7, 2, 4, 1),
    Sketcher.Constraint("Coincident", 12, 2, 13, 1),
    Sketcher.Constraint("Coincident", 13, 2, 14, 2),
    Sketcher.Constraint("Coincident", 14, 1, 15, 1),
    Sketcher.Constraint("Coincident", 15, 2, 12, 1),
    Sketcher.Constraint("Coincident", 16, 2, 17, 2),
    Sketcher.Constraint("Coincident", 17, 1, 18, 1),
    Sketcher.Constraint("Coincident", 18, 2, 19, 1),
    Sketcher.Constraint("Coincident", 19, 2, 16, 1),
    Sketcher.Constraint("Horizontal", 0),
    Sketcher.Constraint("Vertical", 1),
    Sketcher.Constraint("Horizontal", 2),
    Sketcher.Constraint("Vertical", 4),
    Sketcher.Constraint("Horizontal", 5),
    Sketcher.Constraint("Horizontal", 7),
    Sketcher.Constraint("Vertical", 8),
    Sketcher.Constraint("Horizontal", 9),
    Sketcher.Constraint("Vertical", 10),
    Sketcher.Constraint("Horizontal", 11),
    Sketcher.Constraint("Vertical", 12),
    Sketcher.Constraint("Horizontal", 13),
    Sketcher.Constraint("Horizontal", 15),
    Sketcher.Constraint("Horizontal", 16),
    Sketcher.Constraint("Horizontal", 18),
    Sketcher.Constraint("Vertical", 19),
    Sketcher.Constraint("Vertical", 20),
    Sketcher.Constraint("Horizontal", 21),
    Sketcher.Constraint("Vertical", 22),
    Sketcher.Constraint("Horizontal", 23),
    Sketcher.Constraint("Coincident", 6, 3, 3, 3),
    Sketcher.Constraint("Coincident", 17, 3, 14, 3),
    Sketcher.Constraint("Equal", 3, 6),
    Sketcher.Constraint("Equal", 6, 14),
    Sketcher.Constraint("Equal", 14, 17),
    Sketcher.Constraint("Symmetric", 3, 3, 14, 3, -1),
    Sketcher.Constraint("Symmetric", 0, 2, 12, 2, -1),
    Sketcher.Constraint("Symmetric", 4, 2, 18, 2, -1),
    Sketcher.Constraint("Symmetric", 11, 2, 20, 2, -1),
    Sketcher.Constraint("Symmetric", 9, 2, 22, 2, -1),
    Sketcher.Constraint("Horizontal", 6, 3, 1, 2),
    Sketcher.Constraint("Horizontal", 3, 1, 4, 2),
    Sketcher.Constraint("Horizontal", 2, 2, 6, 1),
    Sketcher.Constraint("Horizontal", 7, 2, 8, 2),
    Sketcher.Constraint("Horizontal", 5, 2, 10, 2),
    Sketcher.Constraint("Horizontal", 17, 3, 14, 1),
    Sketcher.Constraint("Horizontal", 15, 2, 16, 2),
    Sketcher.Constraint("Radius", 3, 3.3),
    Sketcher.Constraint("DistanceY", 1, 2, 1, 1, 3.0),
    Sketcher.Constraint("DistanceX", 2, 1, 2, 2, 13.7),
    Sketcher.Constraint("DistanceX", 7, 1, 7, 2, 1.7),
    Sketcher.Constraint("DistanceX", 9, 1, 9, 2, 85.5),
    Sketcher.Constraint("DistanceX", -1, 1, 3, 3, 75.0),
    Sketcher.Constraint("DistanceX", -1, 1, 8, 2, 103.0),
    Sketcher.Constraint("DistanceY", 3, 3, 14, 3, 103.0),
])
pad4 = body.newObject("PartDesign::Pad", "Pad003")
pad4.Profile = sketch4
pad4.Length = 7.8
pad4.Reversed = True

doc.recompute()
